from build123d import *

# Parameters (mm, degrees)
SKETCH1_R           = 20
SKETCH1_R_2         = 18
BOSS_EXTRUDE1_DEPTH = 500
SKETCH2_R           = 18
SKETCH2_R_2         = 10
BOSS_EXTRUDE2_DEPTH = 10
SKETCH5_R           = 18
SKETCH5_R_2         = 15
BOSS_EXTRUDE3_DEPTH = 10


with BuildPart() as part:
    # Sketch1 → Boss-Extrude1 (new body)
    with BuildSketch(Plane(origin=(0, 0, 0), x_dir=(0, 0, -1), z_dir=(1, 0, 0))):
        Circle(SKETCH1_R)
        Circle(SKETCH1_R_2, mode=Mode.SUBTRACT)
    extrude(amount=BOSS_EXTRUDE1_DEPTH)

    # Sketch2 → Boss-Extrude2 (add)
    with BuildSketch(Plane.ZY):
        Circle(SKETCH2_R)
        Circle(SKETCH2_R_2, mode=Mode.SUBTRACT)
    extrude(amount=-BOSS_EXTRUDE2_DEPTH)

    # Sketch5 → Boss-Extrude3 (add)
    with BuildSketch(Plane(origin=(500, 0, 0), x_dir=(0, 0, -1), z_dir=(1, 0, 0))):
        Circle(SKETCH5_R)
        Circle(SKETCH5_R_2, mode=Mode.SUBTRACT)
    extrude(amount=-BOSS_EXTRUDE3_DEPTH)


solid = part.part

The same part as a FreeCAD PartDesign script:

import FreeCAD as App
import Part
import Sketcher
from FreeCAD import Vector

doc = App.newDocument("Part")
body = doc.addObject("PartDesign::Body", "Body")

# Sketch on YZ plane
sketch1 = doc.addObject("Sketcher::SketchObject", "Sketch")
body.addObject(sketch1)
sketch1.AttachmentSupport = (doc.YZ_Plane, [""])
sketch1.MapMode = "FlatFace"
sketch1.addGeometry([
    Part.Circle(Vector(0, 0, 0), Vector(0, 0, 1), 20),
    Part.Circle(Vector(0, 0, 0), Vector(0, 0, 1), 18),
], False)
sketch1.addConstraint([
    Sketcher.Constraint("Coincident", 0, 3, -1, 1),
    Sketcher.Constraint("Coincident", 1, 3, -1, 1),
    Sketcher.Constraint("Diameter", 0, 40.0),
    Sketcher.Constraint("Diameter", 1, 36.0),
])
pad1 = doc.addObject("PartDesign::Pad", "Pad")
body.addObject(pad1)
pad1.Profile = sketch1
pad1.Length = 500

# Sketch on YZ plane
sketch2 = doc.addObject("Sketcher::SketchObject", "Sketch001")
body.addObject(sketch2)
sketch2.AttachmentSupport = (doc.YZ_Plane, [""])
sketch2.MapMode = "FlatFace"
sketch2.addGeometry([
    Part.Circle(Vector(0, 0, 0), Vector(0, 0, 1), 18),
    Part.Circle(Vector(0, 0, 0), Vector(0, 0, 1), 10),
], False)
sketch2.addConstraint([
    Sketcher.Constraint("Coincident", 0, 3, -1, 1),
    Sketcher.Constraint("Coincident", 1, 3, -1, 1),
    Sketcher.Constraint("Diameter", 0, 36.0),
    Sketcher.Constraint("Diameter", 1, 20.0),
])
pad2 = doc.addObject("PartDesign::Pad", "Pad001")
body.addObject(pad2)
pad2.Profile = sketch2
pad2.Length = 10

# Sketch on YZ plane
sketch3 = doc.addObject("Sketcher::SketchObject", "Sketch002")
body.addObject(sketch3)
sketch3.AttachmentSupport = (doc.YZ_Plane, [""])
sketch3.MapMode = "FlatFace"
sketch3.AttachmentOffset = App.Placement(Vector(0, 0, 500), App.Rotation())
sketch3.addGeometry([
    Part.Circle(Vector(0, 0, 0), Vector(0, 0, 1), 18),
    Part.Circle(Vector(0, 0, 0), Vector(0, 0, 1), 15),
], False)
sketch3.addConstraint([
    Sketcher.Constraint("Coincident", 0, 3, -1, 1),
    Sketcher.Constraint("Coincident", 1, 3, -1, 1),
    Sketcher.Constraint("Diameter", 0, 36.0),
    Sketcher.Constraint("Diameter", 1, 30.0),
])
pad3 = doc.addObject("PartDesign::Pad", "Pad002")
body.addObject(pad3)
pad3.Profile = sketch3
pad3.Length = 10
pad3.Reversed = True

doc.recompute()
